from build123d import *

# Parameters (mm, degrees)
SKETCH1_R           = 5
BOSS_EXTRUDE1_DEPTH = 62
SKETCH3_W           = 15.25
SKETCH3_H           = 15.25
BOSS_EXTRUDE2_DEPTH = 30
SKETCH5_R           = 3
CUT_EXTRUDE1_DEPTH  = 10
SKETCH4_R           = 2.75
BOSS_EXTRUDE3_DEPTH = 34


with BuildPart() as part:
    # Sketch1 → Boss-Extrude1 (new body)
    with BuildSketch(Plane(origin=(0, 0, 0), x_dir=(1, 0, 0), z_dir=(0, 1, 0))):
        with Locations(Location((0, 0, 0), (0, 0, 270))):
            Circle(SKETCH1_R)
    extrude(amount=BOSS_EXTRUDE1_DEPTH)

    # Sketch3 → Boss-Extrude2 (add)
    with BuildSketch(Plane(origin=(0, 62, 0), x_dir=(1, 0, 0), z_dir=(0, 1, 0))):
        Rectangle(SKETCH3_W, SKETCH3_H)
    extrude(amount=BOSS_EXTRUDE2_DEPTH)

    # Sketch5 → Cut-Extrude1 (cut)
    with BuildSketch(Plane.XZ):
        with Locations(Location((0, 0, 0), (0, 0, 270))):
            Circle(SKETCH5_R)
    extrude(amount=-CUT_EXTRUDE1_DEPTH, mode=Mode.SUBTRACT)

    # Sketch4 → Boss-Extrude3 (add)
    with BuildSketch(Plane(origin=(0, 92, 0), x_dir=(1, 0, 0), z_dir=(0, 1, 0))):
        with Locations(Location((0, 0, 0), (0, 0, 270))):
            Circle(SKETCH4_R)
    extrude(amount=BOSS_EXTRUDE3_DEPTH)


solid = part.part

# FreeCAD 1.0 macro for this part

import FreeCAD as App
import Part
import Sketcher

V = App.Vector
Q = App.Units.Quantity


def add_polygon(sketch, points):
    """Adds a closed chain of lines whose ends are joined by coincident constraints."""
    first, n = sketch.GeometryCount, len(points)
    for a, b in zip(points, points[1:] + points[:1]):
        sketch.addGeometry(Part.LineSegment(App.Vector(*a, 0), App.Vector(*b, 0)), False)
    for i in range(n):
        sketch.addConstraint(Sketcher.Constraint("Coincident", first + i, 2, first + (i + 1) % n, 1))

doc = App.newDocument("Part")
body = doc.addObject("PartDesign::Body", "Body")

# Sketch on XZ plane
sketch1 = doc.addObject("Sketcher::SketchObject", "Sketch")
body.addObject(sketch1)
sketch1.AttachmentSupport = (doc.XZ_Plane, [""])
sketch1.MapMode = "FlatFace"
sketch1.addGeometry(Part.Circle(V(0, 0, 0), V(0, 0, 1), 5), False)
sketch1.addConstraint(Sketcher.Constraint("Coincident", 0, 3, -1, 1))
sketch1.addConstraint(Sketcher.Constraint("Diameter", 0, Q("10 mm")))
pad1 = doc.addObject("PartDesign::Pad", "Pad")
body.addObject(pad1)
pad1.Profile = sketch1
pad1.Length = 62
pad1.Reversed = True

# Sketch on XZ plane
sketch2 = doc.addObject("Sketcher::SketchObject", "Sketch001")
body.addObject(sketch2)
sketch2.AttachmentSupport = (doc.XZ_Plane, [""])
sketch2.MapMode = "FlatFace"
sketch2.AttachmentOffset = App.Placement(V(0, 0, -62), App.Rotation())
add_polygon(sketch2, [(-7.625, -7.625), (-7.625, 7.625), (7.625, 7.625), (7.625, -7.625)])  # lines 0-3
sketch2.addConstraint(Sketcher.Constraint("Vertical", 0))
sketch2.addConstraint(Sketcher.Constraint("Horizontal", 1))
sketch2.addConstraint(Sketcher.Constraint("Vertical", 2))
sketch2.addConstraint(Sketcher.Constraint("Horizontal", 3))
sketch2.addConstraint(Sketcher.Constraint("Symmetric", 0, 2, 2, 2, -1, 1))
sketch2.addConstraint(Sketcher.Constraint("Equal", 3, 0))
sketch2.addConstraint(Sketcher.Constraint("DistanceX", 1, 1, 1, 2, Q("15.25 mm")))
pad2 = doc.addObject("PartDesign::Pad", "Pad001")
body.addObject(pad2)
pad2.Profile = sketch2
pad2.Length = 30
pad2.Reversed = True

# Sketch on XZ plane
sketch3 = doc.addObject("Sketcher::SketchObject", "Sketch002")
body.addObject(sketch3)
sketch3.AttachmentSupport = (doc.XZ_Plane, [""])
sketch3.MapMode = "FlatFace"
sketch3.addGeometry(Part.Circle(V(0, 0, 0), V(0, 0, 1), 3), False)
sketch3.addConstraint(Sketcher.Constraint("Coincident", 0, 3, -1, 1))
sketch3.addConstraint(Sketcher.Constraint("Diameter", 0, Q("6 mm")))
pocket1 = doc.addObject("PartDesign::Pocket", "Pocket")
body.addObject(pocket1)
pocket1.Profile = sketch3
pocket1.Length = 10

# Sketch on XZ plane
sketch4 = doc.addObject("Sketcher::SketchObject", "Sketch003")
body.addObject(sketch4)
sketch4.AttachmentSupport = (doc.XZ_Plane, [""])
sketch4.MapMode = "FlatFace"
sketch4.AttachmentOffset = App.Placement(V(0, 0, -92), App.Rotation())
sketch4.addGeometry(Part.Circle(V(0, 0, 0), V(0, 0, 1), 2.75), False)
sketch4.addConstraint(Sketcher.Constraint("Coincident", 0, 3, -1, 1))
sketch4.addConstraint(Sketcher.Constraint("Diameter", 0, Q("5.5 mm")))
pad3 = doc.addObject("PartDesign::Pad", "Pad002")
body.addObject(pad3)
pad3.Profile = sketch4
pad3.Length = 34
pad3.Reversed = True

doc.recompute()
